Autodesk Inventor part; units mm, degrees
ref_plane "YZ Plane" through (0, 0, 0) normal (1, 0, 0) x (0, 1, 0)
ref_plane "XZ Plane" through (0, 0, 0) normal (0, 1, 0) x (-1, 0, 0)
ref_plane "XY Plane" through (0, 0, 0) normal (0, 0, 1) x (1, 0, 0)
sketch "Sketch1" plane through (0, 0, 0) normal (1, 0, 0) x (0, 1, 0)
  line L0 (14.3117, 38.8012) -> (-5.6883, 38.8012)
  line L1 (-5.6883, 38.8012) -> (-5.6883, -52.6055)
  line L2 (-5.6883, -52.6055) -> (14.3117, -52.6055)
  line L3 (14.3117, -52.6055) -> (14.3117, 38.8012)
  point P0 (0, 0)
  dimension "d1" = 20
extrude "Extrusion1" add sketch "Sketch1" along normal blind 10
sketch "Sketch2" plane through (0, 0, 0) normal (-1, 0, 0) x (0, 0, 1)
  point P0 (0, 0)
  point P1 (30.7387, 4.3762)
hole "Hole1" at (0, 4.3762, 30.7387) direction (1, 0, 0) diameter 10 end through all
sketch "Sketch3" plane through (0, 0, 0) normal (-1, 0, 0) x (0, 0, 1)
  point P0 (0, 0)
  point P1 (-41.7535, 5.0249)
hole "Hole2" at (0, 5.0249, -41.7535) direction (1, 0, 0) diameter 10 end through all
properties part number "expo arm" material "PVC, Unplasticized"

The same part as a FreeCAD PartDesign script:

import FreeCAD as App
import Part
import Sketcher


def add_polygon(sketch, points):
    """Adds a closed chain of lines whose ends are joined by coincident constraints."""
    first, n = sketch.GeometryCount, len(points)
    for a, b in zip(points, points[1:] + points[:1]):
        sketch.addGeometry(Part.LineSegment(App.Vector(*a, 0), App.Vector(*b, 0)), False)
    for i in range(n):
        sketch.addConstraint(Sketcher.Constraint("Coincident", first + i, 2, first + (i + 1) % n, 1))

doc = App.newDocument("Part")
body = doc.addObject("PartDesign::Body", "Body")

sketch1 = doc.addObject("Sketcher::SketchObject", "Sketch")
body.addObject(sketch1)
sketch1.AttachmentSupport = (doc.YZ_Plane, [""])
sketch1.MapMode = "FlatFace"
add_polygon(sketch1, [(14, -53), (14, 39), (-6, 39), (-6, -53)])
sketch1.addConstraint([
    Sketcher.Constraint("Vertical", 0),
    Sketcher.Constraint("Horizontal", 1),
    Sketcher.Constraint("Vertical", 2),
    Sketcher.Constraint("Horizontal", 3),
    Sketcher.Constraint("DistanceX", 1, 2, 1, 1, 20.0),
    Sketcher.Constraint("DistanceY", 0, 1, 0, 2, 91.4067),
    Sketcher.Constraint("DistanceX", -1, 1, 0, 2, 14.3117),
    Sketcher.Constraint("DistanceY", -1, 1, 0, 2, 38.8012),
])
pad1 = doc.addObject("PartDesign::Pad", "Pad")
body.addObject(pad1)
pad1.Profile = sketch1
pad1.Length = 10

sketch2 = doc.addObject("Sketcher::SketchObject", "Sketch001")
body.addObject(sketch2)
sketch2.AttachmentSupport = (doc.YZ_Plane, [""])
sketch2.MapMode = "FlatFace"
sketch2.addGeometry(Part.Circle(App.Vector(4, 31, 0), App.Vector(0, 0, 1), 5), False)
sketch2.addConstraint([
    Sketcher.Constraint("Diameter", 0, 10.0),
    Sketcher.Constraint("DistanceX", -1, 1, 0, 3, 4.3762),
    Sketcher.Constraint("DistanceY", -1, 1, 0, 3, 30.7387),
])
doc.recompute()
hole = doc.addObject("PartDesign::Hole", "Hole")
body.addObject(hole)
hole.Profile = sketch2
hole.ThreadType = "None"
hole.Diameter = 10
hole.DepthType = "ThroughAll"
hole.Reversed = True

sketch3 = doc.addObject("Sketcher::SketchObject", "Sketch002")
body.addObject(sketch3)
sketch3.AttachmentSupport = (doc.YZ_Plane, [""])
sketch3.MapMode = "FlatFace"
sketch3.addGeometry(Part.Circle(App.Vector(5, -42, 0), App.Vector(0, 0, 1), 5), False)
sketch3.addConstraint([
    Sketcher.Constraint("Diameter", 0, 10.0),
    Sketcher.Constraint("DistanceX", -1, 1, 0, 3, 5.025),
    Sketcher.Constraint("DistanceY", 0, 3, -1, 1, 41.7535),
])
doc.recompute()
hole2 = doc.addObject("PartDesign::Hole", "Hole001")
body.addObject(hole2)
hole2.Profile = sketch3
hole2.ThreadType = "None"
hole2.Diameter = 10
hole2.DepthType = "ThroughAll"
hole2.Reversed = True

doc.recompute()
